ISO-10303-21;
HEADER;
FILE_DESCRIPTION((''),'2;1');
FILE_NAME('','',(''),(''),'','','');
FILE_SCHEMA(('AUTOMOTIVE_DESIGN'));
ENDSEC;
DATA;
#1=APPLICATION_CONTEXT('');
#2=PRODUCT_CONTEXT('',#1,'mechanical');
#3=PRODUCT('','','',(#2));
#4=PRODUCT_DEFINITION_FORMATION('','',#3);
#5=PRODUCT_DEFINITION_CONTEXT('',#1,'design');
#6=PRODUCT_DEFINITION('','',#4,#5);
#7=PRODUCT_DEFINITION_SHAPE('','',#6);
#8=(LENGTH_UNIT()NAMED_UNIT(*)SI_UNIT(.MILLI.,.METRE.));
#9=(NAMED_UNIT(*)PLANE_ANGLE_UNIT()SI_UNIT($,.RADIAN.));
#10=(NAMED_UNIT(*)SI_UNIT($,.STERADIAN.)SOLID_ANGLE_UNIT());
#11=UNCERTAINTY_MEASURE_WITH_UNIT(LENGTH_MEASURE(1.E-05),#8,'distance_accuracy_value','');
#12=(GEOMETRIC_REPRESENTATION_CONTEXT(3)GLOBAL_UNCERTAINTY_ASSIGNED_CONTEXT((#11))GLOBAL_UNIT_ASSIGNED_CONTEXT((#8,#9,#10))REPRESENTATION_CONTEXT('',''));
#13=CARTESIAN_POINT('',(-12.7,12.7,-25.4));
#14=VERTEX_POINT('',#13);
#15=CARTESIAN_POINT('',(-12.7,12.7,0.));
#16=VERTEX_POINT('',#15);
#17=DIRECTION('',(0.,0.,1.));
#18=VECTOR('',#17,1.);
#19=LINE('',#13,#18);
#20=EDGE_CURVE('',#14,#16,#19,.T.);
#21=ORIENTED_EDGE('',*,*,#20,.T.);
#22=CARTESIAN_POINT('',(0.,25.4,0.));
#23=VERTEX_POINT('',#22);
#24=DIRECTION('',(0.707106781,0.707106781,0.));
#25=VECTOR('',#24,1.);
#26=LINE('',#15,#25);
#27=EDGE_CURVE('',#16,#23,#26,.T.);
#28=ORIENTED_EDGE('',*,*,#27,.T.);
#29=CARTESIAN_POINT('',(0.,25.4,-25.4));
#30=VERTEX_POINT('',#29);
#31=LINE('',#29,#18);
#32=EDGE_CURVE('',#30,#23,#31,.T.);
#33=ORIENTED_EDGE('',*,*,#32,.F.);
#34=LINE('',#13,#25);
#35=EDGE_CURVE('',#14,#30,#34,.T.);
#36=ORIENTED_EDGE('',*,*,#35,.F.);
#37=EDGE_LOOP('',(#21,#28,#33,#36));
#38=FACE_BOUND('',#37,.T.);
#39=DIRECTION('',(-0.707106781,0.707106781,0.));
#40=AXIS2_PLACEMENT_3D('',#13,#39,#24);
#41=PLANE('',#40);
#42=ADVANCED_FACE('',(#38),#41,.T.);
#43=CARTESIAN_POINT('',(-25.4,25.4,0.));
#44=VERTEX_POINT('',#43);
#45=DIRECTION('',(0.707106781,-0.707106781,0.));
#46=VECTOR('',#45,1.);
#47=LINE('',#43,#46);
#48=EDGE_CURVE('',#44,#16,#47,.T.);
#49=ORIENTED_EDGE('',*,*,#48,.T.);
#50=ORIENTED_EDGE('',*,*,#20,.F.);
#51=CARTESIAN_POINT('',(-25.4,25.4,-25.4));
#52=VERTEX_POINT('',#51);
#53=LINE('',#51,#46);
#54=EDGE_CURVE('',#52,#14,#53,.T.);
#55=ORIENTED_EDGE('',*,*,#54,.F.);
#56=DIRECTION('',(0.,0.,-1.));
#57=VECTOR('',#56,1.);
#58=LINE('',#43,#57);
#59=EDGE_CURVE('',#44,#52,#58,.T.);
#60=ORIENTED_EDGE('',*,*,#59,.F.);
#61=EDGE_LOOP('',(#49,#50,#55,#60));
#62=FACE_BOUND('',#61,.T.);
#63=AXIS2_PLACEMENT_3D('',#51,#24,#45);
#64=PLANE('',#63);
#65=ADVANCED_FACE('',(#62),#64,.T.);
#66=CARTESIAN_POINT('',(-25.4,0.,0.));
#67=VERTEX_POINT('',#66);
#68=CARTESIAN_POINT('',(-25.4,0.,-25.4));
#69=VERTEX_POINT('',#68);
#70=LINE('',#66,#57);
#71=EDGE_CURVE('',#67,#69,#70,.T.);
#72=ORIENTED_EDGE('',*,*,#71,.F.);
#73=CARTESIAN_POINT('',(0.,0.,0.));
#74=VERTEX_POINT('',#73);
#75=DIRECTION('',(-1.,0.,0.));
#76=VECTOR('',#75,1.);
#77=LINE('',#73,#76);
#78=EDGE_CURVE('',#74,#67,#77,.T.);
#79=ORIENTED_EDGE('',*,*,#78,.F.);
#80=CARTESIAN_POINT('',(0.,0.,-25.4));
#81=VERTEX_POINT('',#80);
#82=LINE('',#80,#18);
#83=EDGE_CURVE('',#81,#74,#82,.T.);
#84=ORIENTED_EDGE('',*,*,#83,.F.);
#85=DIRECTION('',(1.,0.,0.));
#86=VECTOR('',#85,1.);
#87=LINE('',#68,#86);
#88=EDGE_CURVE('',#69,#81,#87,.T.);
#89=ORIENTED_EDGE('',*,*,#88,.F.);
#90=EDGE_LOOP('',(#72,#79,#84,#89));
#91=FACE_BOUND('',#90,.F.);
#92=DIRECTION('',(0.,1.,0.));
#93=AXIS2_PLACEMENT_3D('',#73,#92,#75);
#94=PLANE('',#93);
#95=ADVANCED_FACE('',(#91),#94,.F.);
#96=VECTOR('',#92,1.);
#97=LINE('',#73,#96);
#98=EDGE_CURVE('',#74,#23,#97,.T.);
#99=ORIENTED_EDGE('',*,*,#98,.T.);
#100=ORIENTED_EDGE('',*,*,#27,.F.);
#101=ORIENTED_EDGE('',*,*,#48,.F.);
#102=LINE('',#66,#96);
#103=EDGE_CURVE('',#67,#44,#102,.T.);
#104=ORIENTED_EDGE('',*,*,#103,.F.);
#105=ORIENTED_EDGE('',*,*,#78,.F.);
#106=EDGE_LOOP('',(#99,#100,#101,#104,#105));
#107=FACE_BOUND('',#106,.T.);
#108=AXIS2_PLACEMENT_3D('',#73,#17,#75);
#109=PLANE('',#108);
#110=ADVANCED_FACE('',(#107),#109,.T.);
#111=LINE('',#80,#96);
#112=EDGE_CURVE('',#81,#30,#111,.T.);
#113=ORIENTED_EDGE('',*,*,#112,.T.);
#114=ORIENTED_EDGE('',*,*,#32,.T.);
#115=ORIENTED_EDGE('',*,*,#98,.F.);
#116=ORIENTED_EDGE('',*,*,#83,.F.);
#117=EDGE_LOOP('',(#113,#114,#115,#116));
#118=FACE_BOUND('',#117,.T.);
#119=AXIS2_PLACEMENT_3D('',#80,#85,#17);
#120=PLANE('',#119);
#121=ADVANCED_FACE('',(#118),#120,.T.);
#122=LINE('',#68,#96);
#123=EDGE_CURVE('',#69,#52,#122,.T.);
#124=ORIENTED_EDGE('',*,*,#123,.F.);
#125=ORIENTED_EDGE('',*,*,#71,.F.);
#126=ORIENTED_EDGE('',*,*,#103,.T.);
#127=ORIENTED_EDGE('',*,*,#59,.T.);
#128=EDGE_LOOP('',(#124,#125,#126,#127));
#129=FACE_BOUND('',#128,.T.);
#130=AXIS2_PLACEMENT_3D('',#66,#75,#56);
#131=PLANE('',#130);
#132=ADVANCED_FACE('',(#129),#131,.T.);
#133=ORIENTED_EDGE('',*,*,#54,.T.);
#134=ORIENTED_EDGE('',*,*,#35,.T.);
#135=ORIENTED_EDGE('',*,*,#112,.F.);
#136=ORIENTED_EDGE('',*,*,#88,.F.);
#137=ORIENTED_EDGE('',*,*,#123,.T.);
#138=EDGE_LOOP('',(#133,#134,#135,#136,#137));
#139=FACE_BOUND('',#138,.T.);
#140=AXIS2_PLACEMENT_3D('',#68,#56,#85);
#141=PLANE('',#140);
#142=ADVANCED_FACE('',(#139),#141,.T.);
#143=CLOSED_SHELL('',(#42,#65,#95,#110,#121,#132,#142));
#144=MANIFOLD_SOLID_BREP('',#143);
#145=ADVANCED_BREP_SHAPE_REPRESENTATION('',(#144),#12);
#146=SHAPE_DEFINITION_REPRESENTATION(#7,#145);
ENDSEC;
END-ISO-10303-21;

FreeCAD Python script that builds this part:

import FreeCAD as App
import Part
import Sketcher
Q = App.Units.Quantity

doc = App.newDocument("Part")
body = doc.addObject("PartDesign::Body", "Body")

# Sketch on XZ plane
sketch1 = body.newObject("Sketcher::SketchObject", "Sketch")
sketch1.AttachmentSupport = (doc.getObject("XZ_Plane"), [""])
sketch1.MapMode = "FlatFace"
sketch1.addGeometry([
    Part.LineSegment(App.Vector(-25, 0, 0), App.Vector(0, 0, 0)),
    Part.LineSegment(App.Vector(0, 0, 0), App.Vector(0, -25, 0)),
    Part.LineSegment(App.Vector(0, -25, 0), App.Vector(-25, -25, 0)),
    Part.LineSegment(App.Vector(-25, -25, 0), App.Vector(-25, 0, 0)),
], False)
sketch1.addConstraint([
    Sketcher.Constraint("Coincident", 0, 2, 1, 1),
    Sketcher.Constraint("Coincident", 1, 2, 2, 1),
    Sketcher.Constraint("Coincident", 2, 2, 3, 1),
    Sketcher.Constraint("Coincident", 3, 2, 0, 1),
    Sketcher.Constraint("Horizontal", 0),
    Sketcher.Constraint("Vertical", 1),
    Sketcher.Constraint("Horizontal", 2),
    Sketcher.Constraint("Vertical", 3),
    Sketcher.Constraint("Coincident", 0, 2, -1, 1),
    Sketcher.Constraint("Equal", 2, 1),
    Sketcher.Constraint("DistanceX", 0, 1, 0, 2, Q("1 in")),
])
pad1 = body.newObject("PartDesign::Pad", "Pad")
pad1.Profile = sketch1
pad1.Length = Q("1 in")
pad1.Reversed = True

# Sketch on XY plane
sketch2 = body.newObject("Sketcher::SketchObject", "Sketch001")
sketch2.AttachmentSupport = (doc.getObject("XY_Plane"), [""])
sketch2.MapMode = "FlatFace"
sketch2.AttachmentOffset = App.Placement(App.Vector(0, 0, -1 * 25.4), App.Rotation())
sketch2.addGeometry([
    Part.LineSegment(App.Vector(-13, 13, 0), App.Vector(-25, 25, 0)),
    Part.LineSegment(App.Vector(-25, 25, 0), App.Vector(0, 25, 0)),
    Part.LineSegment(App.Vector(0, 25, 0), App.Vector(-13, 13, 0)),
], False)
sketch2.addConstraint([
    Sketcher.Constraint("Coincident", 0, 2, 1, 1),
    Sketcher.Constraint("Coincident", 1, 2, 2, 1),
    Sketcher.Constraint("Coincident", 2, 2, 0, 1),
    Sketcher.Constraint("Horizontal", 1),
    Sketcher.Constraint("PointOnObject", 1, 2, -2),
    Sketcher.Constraint("Perpendicular", 0, 2),
    Sketcher.Constraint("Equal", 0, 2),
    Sketcher.Constraint("DistanceX", 1, 1, 1, 2, Q("1 in")),
    Sketcher.Constraint("DistanceY", -1, 1, 0, 2, Q("1 in")),
])
pocket1 = body.newObject("PartDesign::Pocket", "Pocket")
pocket1.Profile = sketch2
pocket1.Length = Q("1 in")
pocket1.Reversed = True

doc.recompute()
